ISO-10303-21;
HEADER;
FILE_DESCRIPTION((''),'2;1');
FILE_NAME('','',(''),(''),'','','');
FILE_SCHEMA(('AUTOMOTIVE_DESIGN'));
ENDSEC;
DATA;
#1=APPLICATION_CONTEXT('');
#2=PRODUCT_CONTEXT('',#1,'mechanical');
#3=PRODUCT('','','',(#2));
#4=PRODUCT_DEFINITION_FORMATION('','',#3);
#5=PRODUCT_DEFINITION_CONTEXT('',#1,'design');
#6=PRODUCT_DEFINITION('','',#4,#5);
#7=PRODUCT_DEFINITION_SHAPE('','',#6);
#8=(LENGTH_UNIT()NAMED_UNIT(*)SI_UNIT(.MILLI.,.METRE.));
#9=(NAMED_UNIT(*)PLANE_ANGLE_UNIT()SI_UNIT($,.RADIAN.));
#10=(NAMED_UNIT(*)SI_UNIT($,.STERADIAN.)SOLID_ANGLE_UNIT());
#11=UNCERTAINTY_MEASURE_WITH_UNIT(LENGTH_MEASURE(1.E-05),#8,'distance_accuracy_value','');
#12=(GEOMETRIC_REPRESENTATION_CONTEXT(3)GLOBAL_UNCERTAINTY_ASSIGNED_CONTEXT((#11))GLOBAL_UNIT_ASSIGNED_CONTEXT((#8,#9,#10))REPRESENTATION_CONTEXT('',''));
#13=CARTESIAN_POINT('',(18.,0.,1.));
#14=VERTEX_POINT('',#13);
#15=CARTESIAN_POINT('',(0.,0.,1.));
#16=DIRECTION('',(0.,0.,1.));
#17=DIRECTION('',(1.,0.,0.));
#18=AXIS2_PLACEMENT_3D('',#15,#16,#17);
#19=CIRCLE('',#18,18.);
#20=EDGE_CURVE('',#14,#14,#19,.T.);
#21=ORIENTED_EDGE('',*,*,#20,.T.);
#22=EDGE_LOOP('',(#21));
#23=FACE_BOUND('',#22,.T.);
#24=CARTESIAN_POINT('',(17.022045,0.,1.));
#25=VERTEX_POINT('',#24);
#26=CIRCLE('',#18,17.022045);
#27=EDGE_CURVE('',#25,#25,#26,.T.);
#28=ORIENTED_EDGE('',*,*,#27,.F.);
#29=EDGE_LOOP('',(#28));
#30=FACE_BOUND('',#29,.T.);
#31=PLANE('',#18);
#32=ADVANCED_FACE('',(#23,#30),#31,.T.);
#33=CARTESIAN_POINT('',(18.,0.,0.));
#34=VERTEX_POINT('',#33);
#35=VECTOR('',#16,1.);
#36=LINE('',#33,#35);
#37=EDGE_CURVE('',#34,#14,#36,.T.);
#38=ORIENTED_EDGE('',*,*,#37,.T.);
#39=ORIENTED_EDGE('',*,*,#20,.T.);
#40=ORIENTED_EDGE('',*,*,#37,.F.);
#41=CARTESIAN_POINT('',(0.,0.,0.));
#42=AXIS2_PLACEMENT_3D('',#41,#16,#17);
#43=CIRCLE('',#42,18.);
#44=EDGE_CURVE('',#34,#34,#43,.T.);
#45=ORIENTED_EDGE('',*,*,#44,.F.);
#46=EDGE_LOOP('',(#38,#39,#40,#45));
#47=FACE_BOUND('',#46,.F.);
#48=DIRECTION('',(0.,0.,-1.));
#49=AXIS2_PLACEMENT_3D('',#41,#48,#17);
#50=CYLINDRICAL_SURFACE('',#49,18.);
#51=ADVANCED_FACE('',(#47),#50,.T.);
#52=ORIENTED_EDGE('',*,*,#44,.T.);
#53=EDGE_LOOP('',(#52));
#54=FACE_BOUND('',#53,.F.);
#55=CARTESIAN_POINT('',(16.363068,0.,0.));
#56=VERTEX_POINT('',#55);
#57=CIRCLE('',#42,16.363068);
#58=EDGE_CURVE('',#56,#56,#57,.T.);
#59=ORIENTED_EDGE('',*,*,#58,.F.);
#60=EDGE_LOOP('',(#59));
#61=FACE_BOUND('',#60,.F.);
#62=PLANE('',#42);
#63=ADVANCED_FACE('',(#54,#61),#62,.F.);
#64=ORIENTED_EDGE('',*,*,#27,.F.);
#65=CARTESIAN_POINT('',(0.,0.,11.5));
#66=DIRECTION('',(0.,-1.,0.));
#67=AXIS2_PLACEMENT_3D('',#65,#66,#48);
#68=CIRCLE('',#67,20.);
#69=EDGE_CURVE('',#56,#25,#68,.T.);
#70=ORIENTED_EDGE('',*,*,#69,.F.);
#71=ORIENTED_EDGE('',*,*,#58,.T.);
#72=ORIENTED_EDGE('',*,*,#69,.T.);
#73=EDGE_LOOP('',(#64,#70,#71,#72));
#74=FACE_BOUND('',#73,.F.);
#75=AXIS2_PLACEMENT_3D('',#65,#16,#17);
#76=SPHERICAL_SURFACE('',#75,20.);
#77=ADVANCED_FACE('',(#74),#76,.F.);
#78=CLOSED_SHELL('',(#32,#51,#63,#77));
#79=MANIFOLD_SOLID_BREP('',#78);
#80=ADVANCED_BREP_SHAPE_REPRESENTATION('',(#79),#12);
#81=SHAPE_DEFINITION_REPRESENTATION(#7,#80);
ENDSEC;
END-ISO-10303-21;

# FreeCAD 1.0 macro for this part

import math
import FreeCAD as App
import Part
import Sketcher
Q = App.Units.Quantity

doc = App.newDocument("Part")
body = doc.addObject("PartDesign::Body", "Body")

# Sketch on XZ plane
sketch1 = body.newObject("Sketcher::SketchObject", "Sketch")
sketch1.AttachmentSupport = (doc.getObject("XZ_Plane"), [""])
sketch1.MapMode = "FlatFace"
sketch1.addGeometry([
    Part.ArcOfCircle(Part.Circle(App.Vector(0, 12, 0), App.Vector(0, 0, 1), 20), math.radians(-90), math.radians(90)),
    Part.LineSegment(App.Vector(0, 32, 0), App.Vector(0, -8, 0)),
], False)
sketch1.addConstraint([
    Sketcher.Constraint("Coincident", 0, 1, 1, 2),
    Sketcher.Constraint("Coincident", 1, 1, 0, 2),
    Sketcher.Constraint("Vertical", 1),
    Sketcher.Constraint("PointOnObject", 0, 3, -2),
    Sketcher.Constraint("PointOnObject", 0, 1, -2),
    Sketcher.Constraint("Radius", 0, Q("20 mm")),
    Sketcher.Constraint("DistanceY", -1, 1, 0, 3, Q("11.5 mm")),
])
revolution = body.newObject("PartDesign::Revolution", "Revolution")
revolution.Profile = sketch1
revolution.ReferenceAxis = (sketch1, ["V_Axis"])
revolution.Angle = 360
body2 = doc.addObject("PartDesign::Body", "Body001")

# Sketch on XY plane
sketch2 = body2.newObject("Sketcher::SketchObject", "Sketch001")
sketch2.AttachmentSupport = (doc.getObject("XY_Plane001"), [""])
sketch2.MapMode = "FlatFace"
sketch2.addGeometry(Part.Circle(App.Vector(0, 0, 0), App.Vector(0, 0, 1), 18), False)
sketch2.addConstraint([
    Sketcher.Constraint("Coincident", 0, 3, -1, 1),
    Sketcher.Constraint("Diameter", 0, Q("36 mm")),
])
pad1 = body2.newObject("PartDesign::Pad", "Pad")
pad1.Profile = sketch2
pad1.Length = 1
doc.recompute()

boolean = body2.newObject("PartDesign::Boolean", "Boolean")
boolean.Type = "Cut"
boolean.addObjects([body])

doc.recompute()
